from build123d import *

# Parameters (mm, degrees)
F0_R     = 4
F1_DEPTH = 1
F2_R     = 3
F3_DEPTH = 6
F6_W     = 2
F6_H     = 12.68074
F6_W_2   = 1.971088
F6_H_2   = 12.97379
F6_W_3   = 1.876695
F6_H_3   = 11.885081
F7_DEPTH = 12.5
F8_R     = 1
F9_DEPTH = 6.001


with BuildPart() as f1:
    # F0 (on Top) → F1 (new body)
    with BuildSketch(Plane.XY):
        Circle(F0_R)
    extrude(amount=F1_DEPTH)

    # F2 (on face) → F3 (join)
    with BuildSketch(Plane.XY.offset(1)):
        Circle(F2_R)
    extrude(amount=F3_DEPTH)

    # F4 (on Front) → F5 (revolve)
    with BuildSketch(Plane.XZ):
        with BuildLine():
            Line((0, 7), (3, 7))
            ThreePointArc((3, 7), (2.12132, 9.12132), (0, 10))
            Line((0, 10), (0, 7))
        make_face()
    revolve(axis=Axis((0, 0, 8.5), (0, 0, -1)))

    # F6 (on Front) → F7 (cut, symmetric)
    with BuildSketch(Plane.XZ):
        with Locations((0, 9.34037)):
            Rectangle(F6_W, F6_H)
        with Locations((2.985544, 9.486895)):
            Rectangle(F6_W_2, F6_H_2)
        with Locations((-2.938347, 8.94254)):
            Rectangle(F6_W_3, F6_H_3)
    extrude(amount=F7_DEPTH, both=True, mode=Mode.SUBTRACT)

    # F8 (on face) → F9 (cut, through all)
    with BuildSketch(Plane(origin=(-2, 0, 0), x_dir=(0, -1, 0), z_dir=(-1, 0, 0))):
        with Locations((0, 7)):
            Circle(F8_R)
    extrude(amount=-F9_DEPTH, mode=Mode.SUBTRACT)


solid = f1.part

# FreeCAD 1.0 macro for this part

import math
import FreeCAD as App
import Part
import Sketcher
from FreeCAD import Vector
Q = App.Units.Quantity

doc = App.newDocument("Part")
params = doc.addObject("Spreadsheet::Sheet", "Params")
for row, (alias, value) in enumerate([
    ("sketch1_diameter", "8 mm"),
    ("pad1_length", "1 mm"),
    ("sketch2_diameter", "6 mm"),
    ("pad2_length", "6 mm"),
    ("sketch3_radius", "3.000001 mm"),
    ("revolution_angle", "360 deg"),
    ("sketch4_width", "2 mm"),
    ("pocket1_length", "25 mm"),
    ("sketch5_diameter", "2 mm"),
], start=1):
    params.set(f"A{row}", alias)
    params.set(f"B{row}", "=" + value)
    params.setAlias(f"B{row}", alias)

body = doc.addObject("PartDesign::Body", "Body")

# Sketch on XY plane
sketch1 = body.newObject("Sketcher::SketchObject", "Sketch")
sketch1.AttachmentSupport = (doc.getObject("XY_Plane"), [""])
sketch1.MapMode = "FlatFace"
sketch1.addGeometry(Part.Circle(Vector(0, 0, 0), Vector(0, 0, 1), 4), False)
sketch1.addConstraint(Sketcher.Constraint("Coincident", 0, 3, -1, 1))
sketch1.addConstraint(Sketcher.Constraint("Diameter", 0, Q("8 mm")))
sketch1.setExpression("Constraints[1]", "Params.sketch1_diameter")
pad1 = body.newObject("PartDesign::Pad", "Pad")
pad1.Profile = sketch1
pad1.setExpression("Length", "Params.pad1_length")

# Sketch on XY plane
sketch2 = body.newObject("Sketcher::SketchObject", "Sketch001")
sketch2.AttachmentSupport = (doc.getObject("XY_Plane"), [""])
sketch2.MapMode = "FlatFace"
sketch2.AttachmentOffset = App.Placement(Vector(0, 0, 1), App.Rotation())
sketch2.addGeometry(Part.Circle(Vector(0, 0, 0), Vector(0, 0, 1), 3), False)
sketch2.addConstraint(Sketcher.Constraint("Coincident", 0, 3, -1, 1))
sketch2.addConstraint(Sketcher.Constraint("Diameter", 0, Q("6 mm")))
sketch2.setExpression("Constraints[1]", "Params.sketch2_diameter")
pad2 = body.newObject("PartDesign::Pad", "Pad001")
pad2.Profile = sketch2
pad2.setExpression("Length", "Params.pad2_length")

# Sketch on XZ plane
sketch3 = body.newObject("Sketcher::SketchObject", "Sketch002")
sketch3.AttachmentSupport = (doc.getObject("XZ_Plane"), [""])
sketch3.MapMode = "FlatFace"
sketch3.addGeometry(Part.LineSegment(Vector(0, 7, 0), Vector(3, 7, 0)), False)
sketch3.addGeometry(Part.ArcOfCircle(Part.Circle(Vector(0, 7, 0), Vector(0, 0, 1), 3), math.radians(0), math.radians(90)), False)
sketch3.addGeometry(Part.LineSegment(Vector(0, 10, 0), Vector(0, 7, 0)), False)
sketch3.addConstraint(Sketcher.Constraint("Coincident", 0, 2, 1, 1))
sketch3.addConstraint(Sketcher.Constraint("Coincident", 1, 2, 2, 1))
sketch3.addConstraint(Sketcher.Constraint("Coincident", 2, 2, 0, 1))
sketch3.addConstraint(Sketcher.Constraint("Horizontal", 0))
sketch3.addConstraint(Sketcher.Constraint("Vertical", 2))
sketch3.addConstraint(Sketcher.Constraint("Coincident", 2, 2, 1, 3))
sketch3.addConstraint(Sketcher.Constraint("PointOnObject", 1, 3, -2))
sketch3.addConstraint(Sketcher.Constraint("Radius", 1, Q("3.000001 mm")))
sketch3.addConstraint(Sketcher.Constraint("DistanceY", -1, 1, 1, 3, Q("6.999999 mm")))
sketch3.setExpression("Constraints[7]", "Params.sketch3_radius")
revolution = body.newObject("PartDesign::Revolution", "Revolution")
revolution.Profile = sketch3
revolution.ReferenceAxis = (sketch3, ["V_Axis"])
revolution.setExpression("Angle", "Params.revolution_angle")

# Sketch on XZ plane
sketch4 = body.newObject("Sketcher::SketchObject", "Sketch003")
sketch4.AttachmentSupport = (doc.getObject("XZ_Plane"), [""])
sketch4.MapMode = "FlatFace"
sketch4.addGeometry(Part.LineSegment(Vector(-1, 15.7, 0), Vector(-1, 3, 0)), False)
sketch4.addGeometry(Part.LineSegment(Vector(-1, 3, 0), Vector(1, 3, 0)), False)
sketch4.addGeometry(Part.LineSegment(Vector(1, 3, 0), Vector(1, 15.7, 0)), False)
sketch4.addGeometry(Part.LineSegment(Vector(1, 15.7, 0), Vector(-1, 15.7, 0)), False)
sketch4.addGeometry(Part.LineSegment(Vector(2, 16, 0), Vector(2, 3, 0)), False)
sketch4.addGeometry(Part.LineSegment(Vector(2, 3, 0), Vector(4, 3, 0)), False)
sketch4.addGeometry(Part.LineSegment(Vector(4, 3, 0), Vector(4, 16, 0)), False)
sketch4.addGeometry(Part.LineSegment(Vector(4, 16, 0), Vector(2, 16, 0)), False)
sketch4.addGeometry(Part.LineSegment(Vector(-3.9, 14.9, 0), Vector(-3.9, 3, 0)), False)
sketch4.addGeometry(Part.LineSegment(Vector(-3.9, 3, 0), Vector(-2, 3, 0)), False)
sketch4.addGeometry(Part.LineSegment(Vector(-2, 3, 0), Vector(-2, 14.9, 0)), False)
sketch4.addGeometry(Part.LineSegment(Vector(-2, 14.9, 0), Vector(-3.9, 14.9, 0)), False)
sketch4.addConstraint(Sketcher.Constraint("Coincident", 0, 2, 1, 1))
sketch4.addConstraint(Sketcher.Constraint("Coincident", 1, 2, 2, 1))
sketch4.addConstraint(Sketcher.Constraint("Coincident", 2, 2, 3, 1))
sketch4.addConstraint(Sketcher.Constraint("Coincident", 3, 2, 0, 1))
sketch4.addConstraint(Sketcher.Constraint("Coincident", 4, 2, 5, 1))
sketch4.addConstraint(Sketcher.Constraint("Coincident", 5, 2, 6, 1))
sketch4.addConstraint(Sketcher.Constraint("Coincident", 6, 2, 7, 1))
sketch4.addConstraint(Sketcher.Constraint("Coincident", 7, 2, 4, 1))
sketch4.addConstraint(Sketcher.Constraint("Coincident", 8, 2, 9, 1))
sketch4.addConstraint(Sketcher.Constraint("Coincident", 9, 2, 10, 1))
sketch4.addConstraint(Sketcher.Constraint("Coincident", 10, 2, 11, 1))
sketch4.addConstraint(Sketcher.Constraint("Coincident", 11, 2, 8, 1))
sketch4.addConstraint(Sketcher.Constraint("Vertical", 0))
sketch4.addConstraint(Sketcher.Constraint("Horizontal", 1))
sketch4.addConstraint(Sketcher.Constraint("Vertical", 2))
sketch4.addConstraint(Sketcher.Constraint("Horizontal", 3))
sketch4.addConstraint(Sketcher.Constraint("Vertical", 4))
sketch4.addConstraint(Sketcher.Constraint("Horizontal", 5))
sketch4.addConstraint(Sketcher.Constraint("Vertical", 6))
sketch4.addConstraint(Sketcher.Constraint("Horizontal", 7))
sketch4.addConstraint(Sketcher.Constraint("Vertical", 8))
sketch4.addConstraint(Sketcher.Constraint("Horizontal", 9))
sketch4.addConstraint(Sketcher.Constraint("Vertical", 10))
sketch4.addConstraint(Sketcher.Constraint("Horizontal", 11))
sketch4.addConstraint(Sketcher.Constraint("Symmetric", 4, 2, 9, 2, -2))
sketch4.addConstraint(Sketcher.Constraint("Horizontal", 1, 2, 4, 2))
sketch4.addConstraint(Sketcher.Constraint("DistanceX", 1, 1, 1, 2, Q("2 mm")))
sketch4.addConstraint(Sketcher.Constraint("DistanceX", 0, 2, -1, 1, Q("1 mm")))
sketch4.addConstraint(Sketcher.Constraint("DistanceY", -1, 1, 0, 2, Q("3 mm")))
sketch4.addConstraint(Sketcher.Constraint("DistanceX", -1, 1, 4, 2, Q("2 mm")))
sketch4.addConstraint(Sketcher.Constraint("DistanceY", 0, 2, 0, 1, Q("12.68074 mm")))
sketch4.addConstraint(Sketcher.Constraint("DistanceY", 4, 2, 4, 1, Q("12.97379 mm")))
sketch4.addConstraint(Sketcher.Constraint("DistanceY", 8, 2, 8, 1, Q("11.885081 mm")))
sketch4.addConstraint(Sketcher.Constraint("DistanceX", 5, 1, 5, 2, Q("1.971088 mm")))
sketch4.addConstraint(Sketcher.Constraint("DistanceX", 9, 1, 9, 2, Q("1.876695 mm")))
sketch4.setExpression("Constraints[26]", "Params.sketch4_width")
pocket1 = body.newObject("PartDesign::Pocket", "Pocket")
pocket1.Profile = sketch4
pocket1.setExpression("Length", "Params.pocket1_length")
pocket1.Midplane = True

# Sketch on YZ plane
sketch5 = body.newObject("Sketcher::SketchObject", "Sketch004")
sketch5.AttachmentSupport = (doc.getObject("YZ_Plane"), [""])
sketch5.MapMode = "FlatFace"
sketch5.AttachmentOffset = App.Placement(Vector(0, 0, -2), App.Rotation())
sketch5.addGeometry(Part.Circle(Vector(0, 7, 0), Vector(0, 0, 1), 1), False)
sketch5.addConstraint(Sketcher.Constraint("PointOnObject", 0, 3, -2))
sketch5.addConstraint(Sketcher.Constraint("Diameter", 0, Q("2 mm")))
sketch5.addConstraint(Sketcher.Constraint("DistanceY", -1, 1, 0, 3, Q("7 mm")))
sketch5.setExpression("Constraints[1]", "Params.sketch5_diameter")
pocket2 = body.newObject("PartDesign::Pocket", "Pocket001")
pocket2.Profile = sketch5
pocket2.Type = "ThroughAll"
pocket2.Reversed = True

doc.recompute()
